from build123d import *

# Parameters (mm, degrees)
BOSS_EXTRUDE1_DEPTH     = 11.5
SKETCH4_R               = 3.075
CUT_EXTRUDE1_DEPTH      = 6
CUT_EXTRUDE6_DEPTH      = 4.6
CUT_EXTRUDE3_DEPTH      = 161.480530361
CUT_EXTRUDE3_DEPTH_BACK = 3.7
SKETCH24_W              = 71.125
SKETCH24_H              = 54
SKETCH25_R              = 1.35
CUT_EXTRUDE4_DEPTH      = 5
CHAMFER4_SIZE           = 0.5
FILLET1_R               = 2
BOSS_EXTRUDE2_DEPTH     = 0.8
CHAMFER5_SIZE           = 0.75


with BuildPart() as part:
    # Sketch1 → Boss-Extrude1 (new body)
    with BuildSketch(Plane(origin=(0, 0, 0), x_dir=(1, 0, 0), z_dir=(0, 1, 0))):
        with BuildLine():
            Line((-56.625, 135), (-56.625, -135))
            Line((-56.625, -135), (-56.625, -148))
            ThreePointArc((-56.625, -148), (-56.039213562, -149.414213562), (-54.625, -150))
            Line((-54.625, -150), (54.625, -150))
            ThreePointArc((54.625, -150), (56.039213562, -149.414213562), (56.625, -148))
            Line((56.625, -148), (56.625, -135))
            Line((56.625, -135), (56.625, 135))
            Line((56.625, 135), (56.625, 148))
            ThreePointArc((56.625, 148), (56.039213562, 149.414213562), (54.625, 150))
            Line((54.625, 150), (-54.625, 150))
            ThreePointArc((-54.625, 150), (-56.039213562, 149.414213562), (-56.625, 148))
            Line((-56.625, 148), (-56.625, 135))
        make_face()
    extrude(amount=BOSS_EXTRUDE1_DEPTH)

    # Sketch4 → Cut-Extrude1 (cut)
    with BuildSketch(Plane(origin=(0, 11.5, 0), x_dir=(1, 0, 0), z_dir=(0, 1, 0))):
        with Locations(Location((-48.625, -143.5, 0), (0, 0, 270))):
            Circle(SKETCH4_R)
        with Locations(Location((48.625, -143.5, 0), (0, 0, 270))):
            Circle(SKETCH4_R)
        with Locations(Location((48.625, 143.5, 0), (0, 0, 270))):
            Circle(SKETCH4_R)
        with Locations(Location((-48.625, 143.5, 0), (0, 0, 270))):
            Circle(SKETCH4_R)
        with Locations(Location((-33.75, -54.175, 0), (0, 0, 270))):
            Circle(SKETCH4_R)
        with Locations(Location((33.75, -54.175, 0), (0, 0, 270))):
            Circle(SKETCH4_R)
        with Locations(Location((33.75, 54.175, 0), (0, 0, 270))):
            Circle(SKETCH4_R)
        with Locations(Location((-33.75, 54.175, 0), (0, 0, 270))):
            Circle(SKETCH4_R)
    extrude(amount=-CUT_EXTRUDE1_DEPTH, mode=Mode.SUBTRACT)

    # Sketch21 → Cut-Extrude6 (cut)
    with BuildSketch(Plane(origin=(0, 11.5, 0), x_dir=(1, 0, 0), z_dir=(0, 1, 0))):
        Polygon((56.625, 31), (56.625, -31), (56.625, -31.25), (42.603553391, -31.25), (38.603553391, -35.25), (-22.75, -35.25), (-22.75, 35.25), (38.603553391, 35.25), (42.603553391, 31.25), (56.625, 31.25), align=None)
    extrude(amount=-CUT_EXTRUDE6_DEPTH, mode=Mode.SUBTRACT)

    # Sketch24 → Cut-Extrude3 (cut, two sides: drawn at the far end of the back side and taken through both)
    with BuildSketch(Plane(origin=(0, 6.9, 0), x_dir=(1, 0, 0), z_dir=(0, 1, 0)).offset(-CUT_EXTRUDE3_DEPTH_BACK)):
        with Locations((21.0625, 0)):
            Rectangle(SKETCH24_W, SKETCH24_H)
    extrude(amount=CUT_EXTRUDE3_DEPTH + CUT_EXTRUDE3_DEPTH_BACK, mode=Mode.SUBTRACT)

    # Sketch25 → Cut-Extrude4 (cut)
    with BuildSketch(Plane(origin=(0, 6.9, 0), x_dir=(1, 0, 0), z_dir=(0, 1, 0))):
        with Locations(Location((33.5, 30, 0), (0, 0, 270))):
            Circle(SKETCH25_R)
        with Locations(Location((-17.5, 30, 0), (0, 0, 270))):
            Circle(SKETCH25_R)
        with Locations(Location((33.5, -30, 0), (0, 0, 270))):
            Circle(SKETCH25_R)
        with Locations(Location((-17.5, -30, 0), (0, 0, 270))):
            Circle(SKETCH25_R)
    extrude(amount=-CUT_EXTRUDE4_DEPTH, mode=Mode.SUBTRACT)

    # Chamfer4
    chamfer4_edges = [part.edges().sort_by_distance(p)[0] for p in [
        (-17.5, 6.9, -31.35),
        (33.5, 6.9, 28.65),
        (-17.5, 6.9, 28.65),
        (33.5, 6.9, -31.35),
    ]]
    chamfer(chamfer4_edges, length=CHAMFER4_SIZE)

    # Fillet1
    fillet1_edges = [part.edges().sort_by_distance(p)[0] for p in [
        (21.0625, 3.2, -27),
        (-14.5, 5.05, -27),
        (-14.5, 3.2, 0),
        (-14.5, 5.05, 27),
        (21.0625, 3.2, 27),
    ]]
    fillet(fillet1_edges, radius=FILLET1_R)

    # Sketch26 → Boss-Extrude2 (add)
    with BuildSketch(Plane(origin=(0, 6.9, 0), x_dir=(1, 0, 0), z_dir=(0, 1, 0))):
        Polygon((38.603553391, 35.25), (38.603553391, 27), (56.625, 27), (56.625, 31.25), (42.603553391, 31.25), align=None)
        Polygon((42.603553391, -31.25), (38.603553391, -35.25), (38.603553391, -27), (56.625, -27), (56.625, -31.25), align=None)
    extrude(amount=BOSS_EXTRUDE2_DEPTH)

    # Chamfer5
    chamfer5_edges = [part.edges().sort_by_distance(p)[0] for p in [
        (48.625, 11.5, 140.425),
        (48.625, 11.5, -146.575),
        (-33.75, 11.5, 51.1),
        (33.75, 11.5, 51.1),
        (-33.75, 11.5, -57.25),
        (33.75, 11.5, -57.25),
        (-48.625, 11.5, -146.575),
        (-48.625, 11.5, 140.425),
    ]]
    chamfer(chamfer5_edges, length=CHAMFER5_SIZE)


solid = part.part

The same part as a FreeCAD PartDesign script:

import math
import FreeCAD as App
import Part
import Sketcher


def edges_at(feature, points):
    """Names of the edges that pass closest to the given points."""
    edges = feature.Shape.Edges
    near = lambda p: min(range(len(edges)), key=lambda i: edges[i].distToShape(Part.Vertex(*p))[0])
    return sorted({f"Edge{near(p) + 1}" for p in points})


def add_polygon(sketch, points):
    """Adds a closed chain of lines whose ends are joined by coincident constraints."""
    first, n = sketch.GeometryCount, len(points)
    for a, b in zip(points, points[1:] + points[:1]):
        sketch.addGeometry(Part.LineSegment(App.Vector(*a, 0), App.Vector(*b, 0)), False)
    for i in range(n):
        sketch.addConstraint(Sketcher.Constraint("Coincident", first + i, 2, first + (i + 1) % n, 1))

doc = App.newDocument("Part")
params = doc.addObject("Spreadsheet::Sheet", "Params")
for row, (alias, value) in enumerate([
    ("sketch1_radius", "2 mm"),
    ("sketch1_height", "296 mm"),
    ("sketch1_width", "109.25 mm"),
    ("pad1_length", "11.5 mm"),
    ("sketch2_diameter", "6.15 mm"),
    ("pocket1_length", "6 mm"),
    ("sketch3_height", "62.5 mm"),
    ("sketch3_height2", "70.5 mm"),
    ("pocket2_length", "4.6 mm"),
    ("sketch4_height", "54 mm"),
    ("pocket3_length", "161.48053 mm"),
    ("pocket3_length2", "3.7 mm"),
    ("sketch5_diameter", "2.7 mm"),
    ("pocket4_length", "5 mm"),
    ("chamfer_size", "0.5 mm"),
    ("fillet_radius", "2 mm"),
    ("sketch6_height", "8.25 mm"),
    ("pad2_length", "0.8 mm"),
    ("chamfer2_size", "0.75 mm"),
], start=1):
    params.set(f"A{row}", alias)
    params.set(f"B{row}", "=" + value)
    params.setAlias(f"B{row}", alias)

body = doc.addObject("PartDesign::Body", "Body")

# Sketch on XZ plane
sketch1 = doc.addObject("Sketcher::SketchObject", "Sketch")
body.addObject(sketch1)
sketch1.AttachmentSupport = (doc.XZ_Plane, [""])
sketch1.MapMode = "FlatFace"
sketch1.addGeometry(Part.ArcOfCircle(Part.Circle(App.Vector(-54.625, 148, 0), App.Vector(0, 0, 1), 2), math.radians(90), math.radians(180)), False)
sketch1.addGeometry(Part.LineSegment(App.Vector(-54.625, 150, 0), App.Vector(54.625, 150, 0)), False)
sketch1.addGeometry(Part.ArcOfCircle(Part.Circle(App.Vector(54.625, 148, 0), App.Vector(0, 0, 1), 2), math.radians(0), math.radians(90)), False)
sketch1.addGeometry(Part.LineSegment(App.Vector(56.625, 148, 0), App.Vector(56.625, -148, 0)), False)
sketch1.addGeometry(Part.ArcOfCircle(Part.Circle(App.Vector(54.625, -148, 0), App.Vector(0, 0, 1), 2), math.radians(-90), math.radians(0)), False)
sketch1.addGeometry(Part.LineSegment(App.Vector(54.625, -150, 0), App.Vector(-54.625, -150, 0)), False)
sketch1.addGeometry(Part.ArcOfCircle(Part.Circle(App.Vector(-54.625, -148, 0), App.Vector(0, 0, 1), 2), math.radians(-180), math.radians(-90)), False)
sketch1.addGeometry(Part.LineSegment(App.Vector(-56.625, -148, 0), App.Vector(-56.625, 148, 0)), False)
sketch1.addConstraint(Sketcher.Constraint("Tangent", 0, 1, 1, 1))
sketch1.addConstraint(Sketcher.Constraint("Tangent", 1, 2, 2, 2))
sketch1.addConstraint(Sketcher.Constraint("Tangent", 2, 1, 3, 1))
sketch1.addConstraint(Sketcher.Constraint("Tangent", 3, 2, 4, 2))
sketch1.addConstraint(Sketcher.Constraint("Tangent", 4, 1, 5, 1))
sketch1.addConstraint(Sketcher.Constraint("Tangent", 5, 2, 6, 2))
sketch1.addConstraint(Sketcher.Constraint("Tangent", 6, 1, 7, 1))
sketch1.addConstraint(Sketcher.Constraint("Tangent", 7, 2, 0, 2))
sketch1.addConstraint(Sketcher.Constraint("Horizontal", 1))
sketch1.addConstraint(Sketcher.Constraint("Vertical", 3))
sketch1.addConstraint(Sketcher.Constraint("Horizontal", 5))
sketch1.addConstraint(Sketcher.Constraint("Vertical", 7))
sketch1.addConstraint(Sketcher.Constraint("Equal", 0, 2))
sketch1.addConstraint(Sketcher.Constraint("Equal", 2, 4))
sketch1.addConstraint(Sketcher.Constraint("Equal", 4, 6))
sketch1.addConstraint(Sketcher.Constraint("Symmetric", 0, 3, 4, 3, -1, 1))
sketch1.addConstraint(Sketcher.Constraint("Radius", 0, 2.0))
sketch1.addConstraint(Sketcher.Constraint("DistanceY", 3, 2, 3, 1, 296.0))
sketch1.addConstraint(Sketcher.Constraint("DistanceX", 1, 1, 1, 2, 109.25))
sketch1.setExpression("Constraints[16]", "Params.sketch1_radius")
sketch1.setExpression("Constraints[17]", "Params.sketch1_height")
sketch1.setExpression("Constraints[18]", "Params.sketch1_width")
pad1 = doc.addObject("PartDesign::Pad", "Pad")
body.addObject(pad1)
pad1.Profile = sketch1
pad1.setExpression("Length", "Params.pad1_length")
pad1.Reversed = True

# Sketch on XZ plane
sketch2 = doc.addObject("Sketcher::SketchObject", "Sketch001")
body.addObject(sketch2)
sketch2.AttachmentSupport = (doc.XZ_Plane, [""])
sketch2.MapMode = "FlatFace"
sketch2.AttachmentOffset = App.Placement(App.Vector(0, 0, -11.5), App.Rotation())
sketch2.addGeometry(Part.Circle(App.Vector(-48.625, 143.5, 0), App.Vector(0, 0, 1), 3.075), False)
sketch2.addGeometry(Part.Circle(App.Vector(48.625, 143.5, 0), App.Vector(0, 0, 1), 3.075), False)
sketch2.addGeometry(Part.Circle(App.Vector(48.625, -143.5, 0), App.Vector(0, 0, 1), 3.075), False)
sketch2.addGeometry(Part.Circle(App.Vector(-48.625, -143.5, 0), App.Vector(0, 0, 1), 3.075), False)
sketch2.addGeometry(Part.Circle(App.Vector(-33.75, 54.175, 0), App.Vector(0, 0, 1), 3.075), False)
sketch2.addGeometry(Part.Circle(App.Vector(33.75, 54.175, 0), App.Vector(0, 0, 1), 3.075), False)
sketch2.addGeometry(Part.Circle(App.Vector(33.75, -54.175, 0), App.Vector(0, 0, 1), 3.075), False)
sketch2.addGeometry(Part.Circle(App.Vector(-33.75, -54.175, 0), App.Vector(0, 0, 1), 3.075), False)
sketch2.addConstraint(Sketcher.Constraint("Equal", 0, 1))
sketch2.addConstraint(Sketcher.Constraint("Equal", 1, 2))
sketch2.addConstraint(Sketcher.Constraint("Equal", 2, 3))
sketch2.addConstraint(Sketcher.Constraint("Equal", 3, 4))
sketch2.addConstraint(Sketcher.Constraint("Equal", 4, 5))
sketch2.addConstraint(Sketcher.Constraint("Equal", 5, 6))
sketch2.addConstraint(Sketcher.Constraint("Equal", 6, 7))
sketch2.addConstraint(Sketcher.Constraint("Symmetric", 0, 3, 2, 3, -1, 1))
sketch2.addConstraint(Sketcher.Constraint("Symmetric", 1, 3, 3, 3, -1, 1))
sketch2.addConstraint(Sketcher.Constraint("Symmetric", 4, 3, 6, 3, -1, 1))
sketch2.addConstraint(Sketcher.Constraint("Symmetric", 5, 3, 7, 3, -1, 1))
sketch2.addConstraint(Sketcher.Constraint("Symmetric", 0, 3, 1, 3, -2))
sketch2.addConstraint(Sketcher.Constraint("Symmetric", 4, 3, 5, 3, -2))
sketch2.addConstraint(Sketcher.Constraint("Diameter", 0, 6.15))
sketch2.addConstraint(Sketcher.Constraint("DistanceY", 2, 3, 1, 3, 287.0))
sketch2.addConstraint(Sketcher.Constraint("DistanceX", 4, 3, 5, 3, 67.5))
sketch2.addConstraint(Sketcher.Constraint("DistanceX", 0, 3, 1, 3, 97.25))
sketch2.addConstraint(Sketcher.Constraint("DistanceY", 6, 3, 5, 3, 108.35))
sketch2.setExpression("Constraints[13]", "Params.sketch2_diameter")
pocket1 = doc.addObject("PartDesign::Pocket", "Pocket")
body.addObject(pocket1)
pocket1.Profile = sketch2
pocket1.setExpression("Length", "Params.pocket1_length")
pocket1.Reversed = True

# Sketch on XZ plane
sketch3 = doc.addObject("Sketcher::SketchObject", "Sketch002")
body.addObject(sketch3)
sketch3.AttachmentSupport = (doc.XZ_Plane, [""])
sketch3.MapMode = "FlatFace"
sketch3.AttachmentOffset = App.Placement(App.Vector(0, 0, -11.5), App.Rotation())
add_polygon(sketch3, [(56.625, 31.25), (56.625, -31.25), (42.603553, -31.25), (38.603553, -35.25), (-22.75, -35.25), (-22.75, 35.25), (38.603553, 35.25), (42.603553, 31.25)])  # lines 0-7
sketch3.addConstraint(Sketcher.Constraint("Vertical", 0))
sketch3.addConstraint(Sketcher.Constraint("Horizontal", 1))
sketch3.addConstraint(Sketcher.Constraint("Horizontal", 3))
sketch3.addConstraint(Sketcher.Constraint("Vertical", 4))
sketch3.addConstraint(Sketcher.Constraint("Horizontal", 5))
sketch3.addConstraint(Sketcher.Constraint("Horizontal", 7))
sketch3.addConstraint(Sketcher.Constraint("Symmetric", 2, 2, 5, 2, -1))
sketch3.addConstraint(Sketcher.Constraint("Symmetric", 1, 2, 6, 2, -1))
sketch3.addConstraint(Sketcher.Constraint("Perpendicular", 2, 6))
sketch3.addConstraint(Sketcher.Constraint("DistanceY", 0, 2, 0, 1, 62.5))
sketch3.addConstraint(Sketcher.Constraint("DistanceY", 4, 1, 4, 2, 70.5))
sketch3.addConstraint(Sketcher.Constraint("DistanceX", 3, 2, -1, 1, 22.75))
sketch3.addConstraint(Sketcher.Constraint("DistanceX", -1, 1, 0, 2, 56.625))
sketch3.addConstraint(Sketcher.Constraint("DistanceX", 1, 2, 1, 1, 14.021447))
sketch3.setExpression("Constraints[17]", "Params.sketch3_height")
sketch3.setExpression("Constraints[18]", "Params.sketch3_height2")
pocket2 = doc.addObject("PartDesign::Pocket", "Pocket001")
body.addObject(pocket2)
pocket2.Profile = sketch3
pocket2.setExpression("Length", "Params.pocket2_length")
pocket2.Reversed = True

# Sketch on XZ plane
sketch4 = doc.addObject("Sketcher::SketchObject", "Sketch003")
body.addObject(sketch4)
sketch4.AttachmentSupport = (doc.XZ_Plane, [""])
sketch4.MapMode = "FlatFace"
sketch4.AttachmentOffset = App.Placement(App.Vector(0, 0, -6.9), App.Rotation())
add_polygon(sketch4, [(-14.5, -27), (-14.5, 27), (56.625, 27), (56.625, -27)])  # lines 0-3
sketch4.addConstraint(Sketcher.Constraint("Vertical", 0))
sketch4.addConstraint(Sketcher.Constraint("Horizontal", 1))
sketch4.addConstraint(Sketcher.Constraint("Vertical", 2))
sketch4.addConstraint(Sketcher.Constraint("Horizontal", 3))
sketch4.addConstraint(Sketcher.Constraint("DistanceY", 0, 1, 0, 2, 54.0))
sketch4.addConstraint(Sketcher.Constraint("DistanceY", -1, 1, 0, 2, 27.0))
sketch4.addConstraint(Sketcher.Constraint("DistanceX", 0, 2, -1, 1, 14.5))
sketch4.addConstraint(Sketcher.Constraint("DistanceX", 1, 1, 1, 2, 71.125))
sketch4.setExpression("Constraints[8]", "Params.sketch4_height")
pocket3 = doc.addObject("PartDesign::Pocket", "Pocket002")
body.addObject(pocket3)
pocket3.Profile = sketch4
pocket3.Type = "TwoLengths"
pocket3.setExpression("Length", "Params.pocket3_length")
pocket3.setExpression("Length2", "Params.pocket3_length2")

# Sketch on XZ plane
sketch5 = doc.addObject("Sketcher::SketchObject", "Sketch004")
body.addObject(sketch5)
sketch5.AttachmentSupport = (doc.XZ_Plane, [""])
sketch5.MapMode = "FlatFace"
sketch5.AttachmentOffset = App.Placement(App.Vector(0, 0, -6.9), App.Rotation())
sketch5.addGeometry(Part.Circle(App.Vector(33.5, -30, 0), App.Vector(0, 0, 1), 1.35), False)
sketch5.addGeometry(Part.Circle(App.Vector(-17.5, -30, 0), App.Vector(0, 0, 1), 1.35), False)
sketch5.addGeometry(Part.Circle(App.Vector(33.5, 30, 0), App.Vector(0, 0, 1), 1.35), False)
sketch5.addGeometry(Part.Circle(App.Vector(-17.5, 30, 0), App.Vector(0, 0, 1), 1.35), False)
sketch5.addConstraint(Sketcher.Constraint("Equal", 0, 1))
sketch5.addConstraint(Sketcher.Constraint("Equal", 1, 2))
sketch5.addConstraint(Sketcher.Constraint("Equal", 2, 3))
sketch5.addConstraint(Sketcher.Constraint("Symmetric", 0, 3, 2, 3, -1))
sketch5.addConstraint(Sketcher.Constraint("Symmetric", 1, 3, 3, 3, -1))
sketch5.addConstraint(Sketcher.Constraint("Horizontal", 0, 3, 1, 3))
sketch5.addConstraint(Sketcher.Constraint("Diameter", 0, 2.7))
sketch5.addConstraint(Sketcher.Constraint("DistanceY", 0, 3, -1, 1, 30.0))
sketch5.addConstraint(Sketcher.Constraint("DistanceX", 1, 3, 0, 3, 51.0))
sketch5.addConstraint(Sketcher.Constraint("DistanceX", -1, 1, 0, 3, 33.5))
sketch5.setExpression("Constraints[6]", "Params.sketch5_diameter")
pocket4 = doc.addObject("PartDesign::Pocket", "Pocket003")
body.addObject(pocket4)
pocket4.Profile = sketch5
pocket4.setExpression("Length", "Params.pocket4_length")
pocket4.Reversed = True
doc.recompute()

chamfer = doc.addObject("PartDesign::Chamfer", "Chamfer")
body.addObject(chamfer)
chamfer.Base = (pocket4, edges_at(pocket4, [
    (-17.5, 6.9, -31.35),
    (33.5, 6.9, 28.65),
    (-17.5, 6.9, 28.65),
    (33.5, 6.9, -31.35),
]))
chamfer.setExpression("Size", "Params.chamfer_size")
doc.recompute()

fillet = doc.addObject("PartDesign::Fillet", "Fillet")
body.addObject(fillet)
fillet.Base = (chamfer, edges_at(chamfer, [
    (21.062, 3.2, -27),
    (-14.5, 5.05, -27),
    (-14.5, 3.2, 0),
    (-14.5, 5.05, 27),
    (21.062, 3.2, 27),
]))
fillet.setExpression("Radius", "Params.fillet_radius")

# Sketch on XZ plane
sketch6 = doc.addObject("Sketcher::SketchObject", "Sketch005")
body.addObject(sketch6)
sketch6.AttachmentSupport = (doc.XZ_Plane, [""])
sketch6.MapMode = "FlatFace"
sketch6.AttachmentOffset = App.Placement(App.Vector(0, 0, -6.9), App.Rotation())
add_polygon(sketch6, [(38.603553, -35.25), (38.603553, -27), (56.625, -27), (56.625, -31.25), (42.603553, -31.25)])  # lines 0-4
add_polygon(sketch6, [(38.603553, 35.25), (42.603553, 31.25), (56.625, 31.25), (56.625, 27), (38.603553, 27)])  # lines 5-9
sketch6.addConstraint(Sketcher.Constraint("Vertical", 0))
sketch6.addConstraint(Sketcher.Constraint("Horizontal", 1))
sketch6.addConstraint(Sketcher.Constraint("Vertical", 2))
sketch6.addConstraint(Sketcher.Constraint("Horizontal", 3))
sketch6.addConstraint(Sketcher.Constraint("Horizontal", 6))
sketch6.addConstraint(Sketcher.Constraint("Vertical", 7))
sketch6.addConstraint(Sketcher.Constraint("Horizontal", 8))
sketch6.addConstraint(Sketcher.Constraint("Vertical", 9))
sketch6.addConstraint(Sketcher.Constraint("Symmetric", 3, 2, 5, 2, -1))
sketch6.addConstraint(Sketcher.Constraint("Symmetric", 1, 2, 7, 2, -1))
sketch6.addConstraint(Sketcher.Constraint("Symmetric", 4, 2, 9, 2, -1))
sketch6.addConstraint(Sketcher.Constraint("Perpendicular", 4, 5))
sketch6.addConstraint(Sketcher.Constraint("DistanceY", 0, 2, -1, 1, 27.0))
sketch6.addConstraint(Sketcher.Constraint("DistanceX", 0, 2, 3, 2, 4.0))
sketch6.addConstraint(Sketcher.Constraint("DistanceY", 0, 1, 0, 2, 8.25))
sketch6.addConstraint(Sketcher.Constraint("DistanceX", -1, 1, 1, 2, 56.625))
sketch6.addConstraint(Sketcher.Constraint("DistanceX", 1, 1, 1, 2, 18.021447))
sketch6.setExpression("Constraints[24]", "Params.sketch6_height")
pad2 = doc.addObject("PartDesign::Pad", "Pad001")
body.addObject(pad2)
pad2.Profile = sketch6
pad2.setExpression("Length", "Params.pad2_length")
pad2.Reversed = True
doc.recompute()

chamfer2 = doc.addObject("PartDesign::Chamfer", "Chamfer001")
body.addObject(chamfer2)
chamfer2.Base = (pad2, edges_at(pad2, [
    (48.625, 11.5, 140.425),
    (48.625, 11.5, -146.575),
    (-33.75, 11.5, 51.1),
    (33.75, 11.5, 51.1),
    (-33.75, 11.5, -57.25),
    (33.75, 11.5, -57.25),
    (-48.625, 11.5, -146.575),
    (-48.625, 11.5, 140.425),
]))
chamfer2.setExpression("Size", "Params.chamfer2_size")

doc.recompute()
